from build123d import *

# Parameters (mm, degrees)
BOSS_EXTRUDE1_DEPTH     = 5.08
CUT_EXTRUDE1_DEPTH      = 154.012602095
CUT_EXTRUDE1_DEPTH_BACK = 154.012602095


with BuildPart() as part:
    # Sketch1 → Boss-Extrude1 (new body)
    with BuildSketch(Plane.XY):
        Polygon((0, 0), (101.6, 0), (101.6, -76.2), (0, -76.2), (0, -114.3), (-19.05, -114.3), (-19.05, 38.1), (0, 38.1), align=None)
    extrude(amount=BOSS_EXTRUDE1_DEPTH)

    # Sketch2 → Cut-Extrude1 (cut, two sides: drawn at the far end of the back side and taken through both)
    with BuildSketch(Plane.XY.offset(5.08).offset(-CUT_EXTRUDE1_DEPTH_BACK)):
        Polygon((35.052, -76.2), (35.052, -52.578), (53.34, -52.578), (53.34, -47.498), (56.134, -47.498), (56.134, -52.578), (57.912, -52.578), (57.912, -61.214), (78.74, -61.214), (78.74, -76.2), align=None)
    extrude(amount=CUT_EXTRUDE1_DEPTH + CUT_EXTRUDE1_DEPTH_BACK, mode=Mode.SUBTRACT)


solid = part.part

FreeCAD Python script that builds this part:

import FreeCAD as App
import Part
import Sketcher

V = App.Vector
Q = App.Units.Quantity

doc = App.newDocument("Part")
params = doc.addObject("Spreadsheet::Sheet", "Params")
for row, (alias, value) in enumerate([
    ("sketch1_width", "4 in"),
    ("sketch1_height", "6 in"),
    ("sketch1_height2", "3 in"),
    ("sketch1_width2", "0.75 in"),
    ("pad1_length", "0.2 in"),
    ("sketch2_height", "0.2 in"),
    ("sketch2_width", "1.72 in"),
    ("sketch2_width2", "0.82 in"),
    ("sketch2_width3", "0.07 in"),
    ("sketch2_height2", "0.93 in"),
], start=1):
    params.set(f"A{row}", alias)
    params.set(f"B{row}", "=" + value)
    params.setAlias(f"B{row}", alias)

body = doc.addObject("PartDesign::Body", "Body")

sketch1 = doc.addObject("Sketcher::SketchObject", "Sketch")
body.addObject(sketch1)
sketch1.AttachmentSupport = (doc.XY_Plane, [""])
sketch1.MapMode = "FlatFace"
sketch1.addGeometry([
    Part.LineSegment(V(102, 0, 0), V(0, 0, 0)),
    Part.LineSegment(V(0, 0, 0), V(0, 38, 0)),
    Part.LineSegment(V(0, 38, 0), V(-19, 38, 0)),
    Part.LineSegment(V(-19, 38, 0), V(-19, -114, 0)),
    Part.LineSegment(V(-19, -114, 0), V(0, -114, 0)),
    Part.LineSegment(V(0, -114, 0), V(0, -76, 0)),
    Part.LineSegment(V(0, -76, 0), V(102, -76, 0)),
    Part.LineSegment(V(102, -76, 0), V(102, 0, 0)),
], False)
sketch1.addConstraint([
    Sketcher.Constraint("Coincident", 0, 2, 1, 1),
    Sketcher.Constraint("Coincident", 1, 2, 2, 1),
    Sketcher.Constraint("Coincident", 2, 2, 3, 1),
    Sketcher.Constraint("Coincident", 3, 2, 4, 1),
    Sketcher.Constraint("Coincident", 4, 2, 5, 1),
    Sketcher.Constraint("Coincident", 5, 2, 6, 1),
    Sketcher.Constraint("Coincident", 6, 2, 7, 1),
    Sketcher.Constraint("Coincident", 7, 2, 0, 1),
    Sketcher.Constraint("Horizontal", 0),
    Sketcher.Constraint("Vertical", 1),
    Sketcher.Constraint("Horizontal", 2),
    Sketcher.Constraint("Vertical", 3),
    Sketcher.Constraint("Horizontal", 4),
    Sketcher.Constraint("Vertical", 5),
    Sketcher.Constraint("Horizontal", 6),
    Sketcher.Constraint("Vertical", 7),
    Sketcher.Constraint("Coincident", 0, 2, -1, 1),
    Sketcher.Constraint("PointOnObject", 4, 2, -2),
    Sketcher.Constraint("Equal", 1, 5),
    Sketcher.Constraint("DistanceX", 0, 2, 0, 1, Q("4 in")),
    Sketcher.Constraint("DistanceY", 3, 2, 3, 1, Q("6 in")),
    Sketcher.Constraint("DistanceY", 7, 1, 7, 2, Q("3 in")),
    Sketcher.Constraint("DistanceX", 2, 2, 2, 1, Q("0.75 in")),
])
sketch1.setExpression("Constraints[19]", "Params.sketch1_width")
sketch1.setExpression("Constraints[20]", "Params.sketch1_height")
sketch1.setExpression("Constraints[21]", "Params.sketch1_height2")
sketch1.setExpression("Constraints[22]", "Params.sketch1_width2")
pad1 = doc.addObject("PartDesign::Pad", "Pad")
body.addObject(pad1)
pad1.Profile = sketch1
pad1.setExpression("Length", "Params.pad1_length")

sketch2 = doc.addObject("Sketcher::SketchObject", "Sketch001")
body.addObject(sketch2)
sketch2.AttachmentSupport = (doc.XY_Plane, [""])
sketch2.MapMode = "FlatFace"
sketch2.AttachmentOffset = App.Placement(V(0, 0, 0.2 * 25.4), App.Rotation())
sketch2.addGeometry([
    Part.LineSegment(V(35.1, -52.6, 0), V(35.1, -76.2, 0)),
    Part.LineSegment(V(35.1, -76.2, 0), V(78.7, -76.2, 0)),
    Part.LineSegment(V(78.7, -76.2, 0), V(78.7, -61.2, 0)),
    Part.LineSegment(V(78.7, -61.2, 0), V(57.9, -61.2, 0)),
    Part.LineSegment(V(57.9, -61.2, 0), V(57.9, -52.6, 0)),
    Part.LineSegment(V(57.9, -52.6, 0), V(56.1, -52.6, 0)),
    Part.LineSegment(V(56.1, -52.6, 0), V(56.1, -47.5, 0)),
    Part.LineSegment(V(56.1, -47.5, 0), V(53.3, -47.5, 0)),
    Part.LineSegment(V(53.3, -47.5, 0), V(53.3, -52.6, 0)),
    Part.LineSegment(V(53.3, -52.6, 0), V(35.1, -52.6, 0)),
], False)
sketch2.addConstraint([
    Sketcher.Constraint("Coincident", 0, 2, 1, 1),
    Sketcher.Constraint("Coincident", 1, 2, 2, 1),
    Sketcher.Constraint("Coincident", 2, 2, 3, 1),
    Sketcher.Constraint("Coincident", 3, 2, 4, 1),
    Sketcher.Constraint("Coincident", 4, 2, 5, 1),
    Sketcher.Constraint("Coincident", 5, 2, 6, 1),
    Sketcher.Constraint("Coincident", 6, 2, 7, 1),
    Sketcher.Constraint("Coincident", 7, 2, 8, 1),
    Sketcher.Constraint("Coincident", 8, 2, 9, 1),
    Sketcher.Constraint("Coincident", 9, 2, 0, 1),
    Sketcher.Constraint("Vertical", 0),
    Sketcher.Constraint("Horizontal", 1),
    Sketcher.Constraint("Vertical", 2),
    Sketcher.Constraint("Horizontal", 3),
    Sketcher.Constraint("Vertical", 4),
    Sketcher.Constraint("Horizontal", 5),
    Sketcher.Constraint("Vertical", 6),
    Sketcher.Constraint("Horizontal", 7),
    Sketcher.Constraint("Vertical", 8),
    Sketcher.Constraint("Horizontal", 9),
    Sketcher.Constraint("Horizontal", 5, 2, 8, 2),
    Sketcher.Constraint("DistanceY", 6, 1, 6, 2, Q("0.2 in")),
    Sketcher.Constraint("DistanceY", 0, 2, -1, 1, Q("3 in")),
    Sketcher.Constraint("DistanceX", 7, 2, 2, 2, Q("1 in")),
    Sketcher.Constraint("DistanceX", 1, 1, 1, 2, Q("1.72 in")),
    Sketcher.Constraint("DistanceX", 3, 2, 3, 1, Q("0.82 in")),
    Sketcher.Constraint("DistanceX", 5, 2, 5, 1, Q("0.07 in")),
    Sketcher.Constraint("DistanceY", 0, 2, 0, 1, Q("0.93 in")),
    Sketcher.Constraint("DistanceY", 2, 1, 2, 2, Q("0.59 in")),
    Sketcher.Constraint("DistanceX", -1, 1, 1, 2, Q("3.1 in")),
])
sketch2.setExpression("Constraints[21]", "Params.sketch2_height")
sketch2.setExpression("Constraints[24]", "Params.sketch2_width")
sketch2.setExpression("Constraints[25]", "Params.sketch2_width2")
sketch2.setExpression("Constraints[26]", "Params.sketch2_width3")
sketch2.setExpression("Constraints[27]", "Params.sketch2_height2")
pocket1 = doc.addObject("PartDesign::Pocket", "Pocket")
body.addObject(pocket1)
pocket1.Profile = sketch2
pocket1.Type = "ThroughAll"
pocket1.Midplane = True

doc.recompute()
